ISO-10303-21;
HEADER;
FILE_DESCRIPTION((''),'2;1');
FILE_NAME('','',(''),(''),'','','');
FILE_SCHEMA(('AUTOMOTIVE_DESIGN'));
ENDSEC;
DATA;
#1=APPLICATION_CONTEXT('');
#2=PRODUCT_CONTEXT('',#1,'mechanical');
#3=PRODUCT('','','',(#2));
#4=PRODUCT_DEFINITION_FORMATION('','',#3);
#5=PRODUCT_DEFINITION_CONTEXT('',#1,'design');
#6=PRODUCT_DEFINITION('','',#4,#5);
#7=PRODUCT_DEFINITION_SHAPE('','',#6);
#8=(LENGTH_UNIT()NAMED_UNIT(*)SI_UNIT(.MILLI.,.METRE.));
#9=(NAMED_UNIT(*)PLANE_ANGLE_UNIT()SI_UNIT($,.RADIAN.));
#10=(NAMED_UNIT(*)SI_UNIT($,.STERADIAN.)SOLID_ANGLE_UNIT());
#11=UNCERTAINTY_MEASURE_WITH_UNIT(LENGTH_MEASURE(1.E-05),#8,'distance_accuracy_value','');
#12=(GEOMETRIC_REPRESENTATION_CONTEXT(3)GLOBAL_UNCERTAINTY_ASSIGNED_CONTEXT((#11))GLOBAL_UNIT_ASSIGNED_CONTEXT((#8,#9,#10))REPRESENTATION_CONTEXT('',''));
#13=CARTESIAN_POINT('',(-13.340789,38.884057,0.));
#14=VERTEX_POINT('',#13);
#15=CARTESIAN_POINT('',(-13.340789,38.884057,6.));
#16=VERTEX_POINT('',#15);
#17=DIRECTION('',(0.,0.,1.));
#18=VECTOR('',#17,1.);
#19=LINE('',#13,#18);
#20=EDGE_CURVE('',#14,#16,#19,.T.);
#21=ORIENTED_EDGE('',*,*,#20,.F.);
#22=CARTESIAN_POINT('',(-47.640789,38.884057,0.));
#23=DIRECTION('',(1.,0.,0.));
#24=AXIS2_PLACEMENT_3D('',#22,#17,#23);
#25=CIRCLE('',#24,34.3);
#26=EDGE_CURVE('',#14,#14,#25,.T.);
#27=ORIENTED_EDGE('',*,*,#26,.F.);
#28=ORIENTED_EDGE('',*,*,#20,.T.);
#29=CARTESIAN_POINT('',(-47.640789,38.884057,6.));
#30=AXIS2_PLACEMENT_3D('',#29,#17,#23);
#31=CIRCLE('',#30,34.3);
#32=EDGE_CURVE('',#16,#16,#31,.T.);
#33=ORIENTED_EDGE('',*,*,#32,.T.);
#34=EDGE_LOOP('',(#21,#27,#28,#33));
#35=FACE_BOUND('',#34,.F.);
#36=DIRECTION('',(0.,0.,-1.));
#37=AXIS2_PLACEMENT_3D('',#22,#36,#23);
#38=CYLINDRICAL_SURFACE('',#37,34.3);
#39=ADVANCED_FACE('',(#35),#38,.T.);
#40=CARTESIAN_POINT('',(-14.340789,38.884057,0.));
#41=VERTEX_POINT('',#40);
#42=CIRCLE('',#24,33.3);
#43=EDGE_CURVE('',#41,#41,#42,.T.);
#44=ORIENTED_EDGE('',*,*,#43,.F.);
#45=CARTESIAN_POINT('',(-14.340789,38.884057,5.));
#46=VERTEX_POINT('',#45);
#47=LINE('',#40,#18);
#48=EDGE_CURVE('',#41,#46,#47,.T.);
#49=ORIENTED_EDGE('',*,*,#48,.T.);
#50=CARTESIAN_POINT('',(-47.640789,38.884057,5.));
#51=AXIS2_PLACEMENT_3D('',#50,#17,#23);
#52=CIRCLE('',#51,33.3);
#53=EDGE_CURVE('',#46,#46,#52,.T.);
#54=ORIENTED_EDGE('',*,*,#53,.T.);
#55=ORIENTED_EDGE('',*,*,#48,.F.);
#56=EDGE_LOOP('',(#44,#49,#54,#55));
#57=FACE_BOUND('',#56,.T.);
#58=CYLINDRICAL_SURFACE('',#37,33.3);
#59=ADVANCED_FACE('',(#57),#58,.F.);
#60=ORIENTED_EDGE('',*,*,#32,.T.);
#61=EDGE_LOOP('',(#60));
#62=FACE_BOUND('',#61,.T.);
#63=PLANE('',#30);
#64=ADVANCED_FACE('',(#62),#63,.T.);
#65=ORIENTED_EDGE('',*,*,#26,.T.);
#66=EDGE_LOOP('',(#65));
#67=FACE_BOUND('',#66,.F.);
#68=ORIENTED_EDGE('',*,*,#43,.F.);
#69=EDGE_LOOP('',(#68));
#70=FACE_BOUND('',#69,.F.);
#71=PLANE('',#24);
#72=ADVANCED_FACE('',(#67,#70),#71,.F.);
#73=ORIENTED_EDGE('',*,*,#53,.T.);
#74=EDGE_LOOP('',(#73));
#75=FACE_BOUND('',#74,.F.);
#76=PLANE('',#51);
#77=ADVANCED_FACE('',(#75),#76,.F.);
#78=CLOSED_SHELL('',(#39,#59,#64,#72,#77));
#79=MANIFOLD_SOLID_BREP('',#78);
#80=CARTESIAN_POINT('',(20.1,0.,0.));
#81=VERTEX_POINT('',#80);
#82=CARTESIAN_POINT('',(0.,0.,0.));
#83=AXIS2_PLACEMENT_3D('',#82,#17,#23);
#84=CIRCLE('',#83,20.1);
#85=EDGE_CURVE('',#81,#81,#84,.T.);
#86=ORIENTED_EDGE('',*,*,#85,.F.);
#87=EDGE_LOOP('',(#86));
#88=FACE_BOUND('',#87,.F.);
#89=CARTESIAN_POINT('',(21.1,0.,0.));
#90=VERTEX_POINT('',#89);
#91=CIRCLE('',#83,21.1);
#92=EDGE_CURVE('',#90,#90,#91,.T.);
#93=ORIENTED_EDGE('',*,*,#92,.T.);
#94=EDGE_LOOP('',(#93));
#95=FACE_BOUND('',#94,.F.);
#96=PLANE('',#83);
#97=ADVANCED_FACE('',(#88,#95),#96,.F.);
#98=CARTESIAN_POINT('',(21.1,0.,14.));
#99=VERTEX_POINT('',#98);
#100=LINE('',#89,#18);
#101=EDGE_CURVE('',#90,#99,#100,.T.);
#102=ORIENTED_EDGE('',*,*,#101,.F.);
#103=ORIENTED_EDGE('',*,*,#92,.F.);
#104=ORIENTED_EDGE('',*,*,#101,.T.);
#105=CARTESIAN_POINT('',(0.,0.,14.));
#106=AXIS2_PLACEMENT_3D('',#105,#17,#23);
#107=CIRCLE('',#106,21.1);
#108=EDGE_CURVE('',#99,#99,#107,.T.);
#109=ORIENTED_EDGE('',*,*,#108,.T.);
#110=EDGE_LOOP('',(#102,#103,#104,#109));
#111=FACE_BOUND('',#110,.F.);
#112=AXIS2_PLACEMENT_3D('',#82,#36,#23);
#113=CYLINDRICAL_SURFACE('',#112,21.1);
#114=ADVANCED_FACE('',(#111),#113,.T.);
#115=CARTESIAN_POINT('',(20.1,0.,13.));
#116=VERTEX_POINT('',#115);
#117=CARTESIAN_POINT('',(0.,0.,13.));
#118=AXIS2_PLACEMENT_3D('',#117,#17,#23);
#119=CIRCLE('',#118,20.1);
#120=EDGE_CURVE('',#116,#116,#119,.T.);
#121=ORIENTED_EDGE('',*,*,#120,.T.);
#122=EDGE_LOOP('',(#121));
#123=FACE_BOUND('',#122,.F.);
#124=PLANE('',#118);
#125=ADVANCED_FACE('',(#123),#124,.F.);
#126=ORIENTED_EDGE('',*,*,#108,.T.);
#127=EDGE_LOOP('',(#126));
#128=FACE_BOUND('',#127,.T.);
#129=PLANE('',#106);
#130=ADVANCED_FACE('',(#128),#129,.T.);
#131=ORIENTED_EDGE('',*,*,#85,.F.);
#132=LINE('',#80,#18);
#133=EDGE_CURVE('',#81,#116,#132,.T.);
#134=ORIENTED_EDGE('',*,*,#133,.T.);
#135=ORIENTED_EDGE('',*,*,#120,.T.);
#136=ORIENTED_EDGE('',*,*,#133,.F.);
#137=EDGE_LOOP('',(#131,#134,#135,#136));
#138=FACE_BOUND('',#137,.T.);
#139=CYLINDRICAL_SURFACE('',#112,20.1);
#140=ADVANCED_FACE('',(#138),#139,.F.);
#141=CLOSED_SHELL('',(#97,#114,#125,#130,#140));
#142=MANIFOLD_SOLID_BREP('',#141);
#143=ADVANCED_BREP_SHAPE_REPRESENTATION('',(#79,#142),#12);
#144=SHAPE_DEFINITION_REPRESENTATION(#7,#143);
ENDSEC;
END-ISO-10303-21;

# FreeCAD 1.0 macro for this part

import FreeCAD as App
import Part
import Sketcher

doc = App.newDocument("Part")
body = doc.addObject("PartDesign::Body", "Body")

sketch1 = doc.addObject("Sketcher::SketchObject", "Sketch")
body.addObject(sketch1)
sketch1.AttachmentSupport = (doc.XY_Plane, [""])
sketch1.MapMode = "FlatFace"
sketch1.addGeometry(Part.Circle(App.Vector(0, 0, 0), App.Vector(0, 0, 1), 21), False)
sketch1.addConstraint([
    Sketcher.Constraint("Coincident", 0, 3, -1, 1),
    Sketcher.Constraint("Diameter", 0, 42.2),
])
pad1 = doc.addObject("PartDesign::Pad", "Pad")
body.addObject(pad1)
pad1.Profile = sketch1
pad1.Length = 14

sketch2 = doc.addObject("Sketcher::SketchObject", "Sketch001")
body.addObject(sketch2)
sketch2.AttachmentSupport = (doc.XY_Plane, [""])
sketch2.MapMode = "FlatFace"
sketch2.addGeometry(Part.Circle(App.Vector(0, 0, 0), App.Vector(0, 0, 1), 20), False)
sketch2.addConstraint([
    Sketcher.Constraint("Coincident", 0, 3, -1, 1),
    Sketcher.Constraint("Diameter", 0, 40.2),
])
pocket1 = doc.addObject("PartDesign::Pocket", "Pocket")
body.addObject(pocket1)
pocket1.Profile = sketch2
pocket1.Length = 13
pocket1.Reversed = True
body2 = doc.addObject("PartDesign::Body", "Body001")

sketch3 = doc.addObject("Sketcher::SketchObject", "Sketch002")
body2.addObject(sketch3)
sketch3.AttachmentSupport = (doc.getObject("XY_Plane001"), [""])
sketch3.MapMode = "FlatFace"
sketch3.addGeometry(Part.Circle(App.Vector(-48, 39, 0), App.Vector(0, 0, 1), 34), False)
sketch3.addConstraint([
    Sketcher.Constraint("Diameter", 0, 68.6),
    Sketcher.Constraint("DistanceX", 0, 3, -1, 1, 47.640789),
    Sketcher.Constraint("DistanceY", -1, 1, 0, 3, 38.884057),
])
pad2 = doc.addObject("PartDesign::Pad", "Pad001")
body2.addObject(pad2)
pad2.Profile = sketch3
pad2.Length = 6

sketch4 = doc.addObject("Sketcher::SketchObject", "Sketch003")
body2.addObject(sketch4)
sketch4.AttachmentSupport = (doc.getObject("XY_Plane001"), [""])
sketch4.MapMode = "FlatFace"
sketch4.addGeometry(Part.Circle(App.Vector(-48, 39, 0), App.Vector(0, 0, 1), 33), False)
sketch4.addConstraint([
    Sketcher.Constraint("Diameter", 0, 66.6),
    Sketcher.Constraint("DistanceX", 0, 3, -1, 1, 47.640789),
    Sketcher.Constraint("DistanceY", -1, 1, 0, 3, 38.884057),
])
pocket2 = doc.addObject("PartDesign::Pocket", "Pocket001")
body2.addObject(pocket2)
pocket2.Profile = sketch4
pocket2.Length = 5
pocket2.Reversed = True

doc.recompute()
